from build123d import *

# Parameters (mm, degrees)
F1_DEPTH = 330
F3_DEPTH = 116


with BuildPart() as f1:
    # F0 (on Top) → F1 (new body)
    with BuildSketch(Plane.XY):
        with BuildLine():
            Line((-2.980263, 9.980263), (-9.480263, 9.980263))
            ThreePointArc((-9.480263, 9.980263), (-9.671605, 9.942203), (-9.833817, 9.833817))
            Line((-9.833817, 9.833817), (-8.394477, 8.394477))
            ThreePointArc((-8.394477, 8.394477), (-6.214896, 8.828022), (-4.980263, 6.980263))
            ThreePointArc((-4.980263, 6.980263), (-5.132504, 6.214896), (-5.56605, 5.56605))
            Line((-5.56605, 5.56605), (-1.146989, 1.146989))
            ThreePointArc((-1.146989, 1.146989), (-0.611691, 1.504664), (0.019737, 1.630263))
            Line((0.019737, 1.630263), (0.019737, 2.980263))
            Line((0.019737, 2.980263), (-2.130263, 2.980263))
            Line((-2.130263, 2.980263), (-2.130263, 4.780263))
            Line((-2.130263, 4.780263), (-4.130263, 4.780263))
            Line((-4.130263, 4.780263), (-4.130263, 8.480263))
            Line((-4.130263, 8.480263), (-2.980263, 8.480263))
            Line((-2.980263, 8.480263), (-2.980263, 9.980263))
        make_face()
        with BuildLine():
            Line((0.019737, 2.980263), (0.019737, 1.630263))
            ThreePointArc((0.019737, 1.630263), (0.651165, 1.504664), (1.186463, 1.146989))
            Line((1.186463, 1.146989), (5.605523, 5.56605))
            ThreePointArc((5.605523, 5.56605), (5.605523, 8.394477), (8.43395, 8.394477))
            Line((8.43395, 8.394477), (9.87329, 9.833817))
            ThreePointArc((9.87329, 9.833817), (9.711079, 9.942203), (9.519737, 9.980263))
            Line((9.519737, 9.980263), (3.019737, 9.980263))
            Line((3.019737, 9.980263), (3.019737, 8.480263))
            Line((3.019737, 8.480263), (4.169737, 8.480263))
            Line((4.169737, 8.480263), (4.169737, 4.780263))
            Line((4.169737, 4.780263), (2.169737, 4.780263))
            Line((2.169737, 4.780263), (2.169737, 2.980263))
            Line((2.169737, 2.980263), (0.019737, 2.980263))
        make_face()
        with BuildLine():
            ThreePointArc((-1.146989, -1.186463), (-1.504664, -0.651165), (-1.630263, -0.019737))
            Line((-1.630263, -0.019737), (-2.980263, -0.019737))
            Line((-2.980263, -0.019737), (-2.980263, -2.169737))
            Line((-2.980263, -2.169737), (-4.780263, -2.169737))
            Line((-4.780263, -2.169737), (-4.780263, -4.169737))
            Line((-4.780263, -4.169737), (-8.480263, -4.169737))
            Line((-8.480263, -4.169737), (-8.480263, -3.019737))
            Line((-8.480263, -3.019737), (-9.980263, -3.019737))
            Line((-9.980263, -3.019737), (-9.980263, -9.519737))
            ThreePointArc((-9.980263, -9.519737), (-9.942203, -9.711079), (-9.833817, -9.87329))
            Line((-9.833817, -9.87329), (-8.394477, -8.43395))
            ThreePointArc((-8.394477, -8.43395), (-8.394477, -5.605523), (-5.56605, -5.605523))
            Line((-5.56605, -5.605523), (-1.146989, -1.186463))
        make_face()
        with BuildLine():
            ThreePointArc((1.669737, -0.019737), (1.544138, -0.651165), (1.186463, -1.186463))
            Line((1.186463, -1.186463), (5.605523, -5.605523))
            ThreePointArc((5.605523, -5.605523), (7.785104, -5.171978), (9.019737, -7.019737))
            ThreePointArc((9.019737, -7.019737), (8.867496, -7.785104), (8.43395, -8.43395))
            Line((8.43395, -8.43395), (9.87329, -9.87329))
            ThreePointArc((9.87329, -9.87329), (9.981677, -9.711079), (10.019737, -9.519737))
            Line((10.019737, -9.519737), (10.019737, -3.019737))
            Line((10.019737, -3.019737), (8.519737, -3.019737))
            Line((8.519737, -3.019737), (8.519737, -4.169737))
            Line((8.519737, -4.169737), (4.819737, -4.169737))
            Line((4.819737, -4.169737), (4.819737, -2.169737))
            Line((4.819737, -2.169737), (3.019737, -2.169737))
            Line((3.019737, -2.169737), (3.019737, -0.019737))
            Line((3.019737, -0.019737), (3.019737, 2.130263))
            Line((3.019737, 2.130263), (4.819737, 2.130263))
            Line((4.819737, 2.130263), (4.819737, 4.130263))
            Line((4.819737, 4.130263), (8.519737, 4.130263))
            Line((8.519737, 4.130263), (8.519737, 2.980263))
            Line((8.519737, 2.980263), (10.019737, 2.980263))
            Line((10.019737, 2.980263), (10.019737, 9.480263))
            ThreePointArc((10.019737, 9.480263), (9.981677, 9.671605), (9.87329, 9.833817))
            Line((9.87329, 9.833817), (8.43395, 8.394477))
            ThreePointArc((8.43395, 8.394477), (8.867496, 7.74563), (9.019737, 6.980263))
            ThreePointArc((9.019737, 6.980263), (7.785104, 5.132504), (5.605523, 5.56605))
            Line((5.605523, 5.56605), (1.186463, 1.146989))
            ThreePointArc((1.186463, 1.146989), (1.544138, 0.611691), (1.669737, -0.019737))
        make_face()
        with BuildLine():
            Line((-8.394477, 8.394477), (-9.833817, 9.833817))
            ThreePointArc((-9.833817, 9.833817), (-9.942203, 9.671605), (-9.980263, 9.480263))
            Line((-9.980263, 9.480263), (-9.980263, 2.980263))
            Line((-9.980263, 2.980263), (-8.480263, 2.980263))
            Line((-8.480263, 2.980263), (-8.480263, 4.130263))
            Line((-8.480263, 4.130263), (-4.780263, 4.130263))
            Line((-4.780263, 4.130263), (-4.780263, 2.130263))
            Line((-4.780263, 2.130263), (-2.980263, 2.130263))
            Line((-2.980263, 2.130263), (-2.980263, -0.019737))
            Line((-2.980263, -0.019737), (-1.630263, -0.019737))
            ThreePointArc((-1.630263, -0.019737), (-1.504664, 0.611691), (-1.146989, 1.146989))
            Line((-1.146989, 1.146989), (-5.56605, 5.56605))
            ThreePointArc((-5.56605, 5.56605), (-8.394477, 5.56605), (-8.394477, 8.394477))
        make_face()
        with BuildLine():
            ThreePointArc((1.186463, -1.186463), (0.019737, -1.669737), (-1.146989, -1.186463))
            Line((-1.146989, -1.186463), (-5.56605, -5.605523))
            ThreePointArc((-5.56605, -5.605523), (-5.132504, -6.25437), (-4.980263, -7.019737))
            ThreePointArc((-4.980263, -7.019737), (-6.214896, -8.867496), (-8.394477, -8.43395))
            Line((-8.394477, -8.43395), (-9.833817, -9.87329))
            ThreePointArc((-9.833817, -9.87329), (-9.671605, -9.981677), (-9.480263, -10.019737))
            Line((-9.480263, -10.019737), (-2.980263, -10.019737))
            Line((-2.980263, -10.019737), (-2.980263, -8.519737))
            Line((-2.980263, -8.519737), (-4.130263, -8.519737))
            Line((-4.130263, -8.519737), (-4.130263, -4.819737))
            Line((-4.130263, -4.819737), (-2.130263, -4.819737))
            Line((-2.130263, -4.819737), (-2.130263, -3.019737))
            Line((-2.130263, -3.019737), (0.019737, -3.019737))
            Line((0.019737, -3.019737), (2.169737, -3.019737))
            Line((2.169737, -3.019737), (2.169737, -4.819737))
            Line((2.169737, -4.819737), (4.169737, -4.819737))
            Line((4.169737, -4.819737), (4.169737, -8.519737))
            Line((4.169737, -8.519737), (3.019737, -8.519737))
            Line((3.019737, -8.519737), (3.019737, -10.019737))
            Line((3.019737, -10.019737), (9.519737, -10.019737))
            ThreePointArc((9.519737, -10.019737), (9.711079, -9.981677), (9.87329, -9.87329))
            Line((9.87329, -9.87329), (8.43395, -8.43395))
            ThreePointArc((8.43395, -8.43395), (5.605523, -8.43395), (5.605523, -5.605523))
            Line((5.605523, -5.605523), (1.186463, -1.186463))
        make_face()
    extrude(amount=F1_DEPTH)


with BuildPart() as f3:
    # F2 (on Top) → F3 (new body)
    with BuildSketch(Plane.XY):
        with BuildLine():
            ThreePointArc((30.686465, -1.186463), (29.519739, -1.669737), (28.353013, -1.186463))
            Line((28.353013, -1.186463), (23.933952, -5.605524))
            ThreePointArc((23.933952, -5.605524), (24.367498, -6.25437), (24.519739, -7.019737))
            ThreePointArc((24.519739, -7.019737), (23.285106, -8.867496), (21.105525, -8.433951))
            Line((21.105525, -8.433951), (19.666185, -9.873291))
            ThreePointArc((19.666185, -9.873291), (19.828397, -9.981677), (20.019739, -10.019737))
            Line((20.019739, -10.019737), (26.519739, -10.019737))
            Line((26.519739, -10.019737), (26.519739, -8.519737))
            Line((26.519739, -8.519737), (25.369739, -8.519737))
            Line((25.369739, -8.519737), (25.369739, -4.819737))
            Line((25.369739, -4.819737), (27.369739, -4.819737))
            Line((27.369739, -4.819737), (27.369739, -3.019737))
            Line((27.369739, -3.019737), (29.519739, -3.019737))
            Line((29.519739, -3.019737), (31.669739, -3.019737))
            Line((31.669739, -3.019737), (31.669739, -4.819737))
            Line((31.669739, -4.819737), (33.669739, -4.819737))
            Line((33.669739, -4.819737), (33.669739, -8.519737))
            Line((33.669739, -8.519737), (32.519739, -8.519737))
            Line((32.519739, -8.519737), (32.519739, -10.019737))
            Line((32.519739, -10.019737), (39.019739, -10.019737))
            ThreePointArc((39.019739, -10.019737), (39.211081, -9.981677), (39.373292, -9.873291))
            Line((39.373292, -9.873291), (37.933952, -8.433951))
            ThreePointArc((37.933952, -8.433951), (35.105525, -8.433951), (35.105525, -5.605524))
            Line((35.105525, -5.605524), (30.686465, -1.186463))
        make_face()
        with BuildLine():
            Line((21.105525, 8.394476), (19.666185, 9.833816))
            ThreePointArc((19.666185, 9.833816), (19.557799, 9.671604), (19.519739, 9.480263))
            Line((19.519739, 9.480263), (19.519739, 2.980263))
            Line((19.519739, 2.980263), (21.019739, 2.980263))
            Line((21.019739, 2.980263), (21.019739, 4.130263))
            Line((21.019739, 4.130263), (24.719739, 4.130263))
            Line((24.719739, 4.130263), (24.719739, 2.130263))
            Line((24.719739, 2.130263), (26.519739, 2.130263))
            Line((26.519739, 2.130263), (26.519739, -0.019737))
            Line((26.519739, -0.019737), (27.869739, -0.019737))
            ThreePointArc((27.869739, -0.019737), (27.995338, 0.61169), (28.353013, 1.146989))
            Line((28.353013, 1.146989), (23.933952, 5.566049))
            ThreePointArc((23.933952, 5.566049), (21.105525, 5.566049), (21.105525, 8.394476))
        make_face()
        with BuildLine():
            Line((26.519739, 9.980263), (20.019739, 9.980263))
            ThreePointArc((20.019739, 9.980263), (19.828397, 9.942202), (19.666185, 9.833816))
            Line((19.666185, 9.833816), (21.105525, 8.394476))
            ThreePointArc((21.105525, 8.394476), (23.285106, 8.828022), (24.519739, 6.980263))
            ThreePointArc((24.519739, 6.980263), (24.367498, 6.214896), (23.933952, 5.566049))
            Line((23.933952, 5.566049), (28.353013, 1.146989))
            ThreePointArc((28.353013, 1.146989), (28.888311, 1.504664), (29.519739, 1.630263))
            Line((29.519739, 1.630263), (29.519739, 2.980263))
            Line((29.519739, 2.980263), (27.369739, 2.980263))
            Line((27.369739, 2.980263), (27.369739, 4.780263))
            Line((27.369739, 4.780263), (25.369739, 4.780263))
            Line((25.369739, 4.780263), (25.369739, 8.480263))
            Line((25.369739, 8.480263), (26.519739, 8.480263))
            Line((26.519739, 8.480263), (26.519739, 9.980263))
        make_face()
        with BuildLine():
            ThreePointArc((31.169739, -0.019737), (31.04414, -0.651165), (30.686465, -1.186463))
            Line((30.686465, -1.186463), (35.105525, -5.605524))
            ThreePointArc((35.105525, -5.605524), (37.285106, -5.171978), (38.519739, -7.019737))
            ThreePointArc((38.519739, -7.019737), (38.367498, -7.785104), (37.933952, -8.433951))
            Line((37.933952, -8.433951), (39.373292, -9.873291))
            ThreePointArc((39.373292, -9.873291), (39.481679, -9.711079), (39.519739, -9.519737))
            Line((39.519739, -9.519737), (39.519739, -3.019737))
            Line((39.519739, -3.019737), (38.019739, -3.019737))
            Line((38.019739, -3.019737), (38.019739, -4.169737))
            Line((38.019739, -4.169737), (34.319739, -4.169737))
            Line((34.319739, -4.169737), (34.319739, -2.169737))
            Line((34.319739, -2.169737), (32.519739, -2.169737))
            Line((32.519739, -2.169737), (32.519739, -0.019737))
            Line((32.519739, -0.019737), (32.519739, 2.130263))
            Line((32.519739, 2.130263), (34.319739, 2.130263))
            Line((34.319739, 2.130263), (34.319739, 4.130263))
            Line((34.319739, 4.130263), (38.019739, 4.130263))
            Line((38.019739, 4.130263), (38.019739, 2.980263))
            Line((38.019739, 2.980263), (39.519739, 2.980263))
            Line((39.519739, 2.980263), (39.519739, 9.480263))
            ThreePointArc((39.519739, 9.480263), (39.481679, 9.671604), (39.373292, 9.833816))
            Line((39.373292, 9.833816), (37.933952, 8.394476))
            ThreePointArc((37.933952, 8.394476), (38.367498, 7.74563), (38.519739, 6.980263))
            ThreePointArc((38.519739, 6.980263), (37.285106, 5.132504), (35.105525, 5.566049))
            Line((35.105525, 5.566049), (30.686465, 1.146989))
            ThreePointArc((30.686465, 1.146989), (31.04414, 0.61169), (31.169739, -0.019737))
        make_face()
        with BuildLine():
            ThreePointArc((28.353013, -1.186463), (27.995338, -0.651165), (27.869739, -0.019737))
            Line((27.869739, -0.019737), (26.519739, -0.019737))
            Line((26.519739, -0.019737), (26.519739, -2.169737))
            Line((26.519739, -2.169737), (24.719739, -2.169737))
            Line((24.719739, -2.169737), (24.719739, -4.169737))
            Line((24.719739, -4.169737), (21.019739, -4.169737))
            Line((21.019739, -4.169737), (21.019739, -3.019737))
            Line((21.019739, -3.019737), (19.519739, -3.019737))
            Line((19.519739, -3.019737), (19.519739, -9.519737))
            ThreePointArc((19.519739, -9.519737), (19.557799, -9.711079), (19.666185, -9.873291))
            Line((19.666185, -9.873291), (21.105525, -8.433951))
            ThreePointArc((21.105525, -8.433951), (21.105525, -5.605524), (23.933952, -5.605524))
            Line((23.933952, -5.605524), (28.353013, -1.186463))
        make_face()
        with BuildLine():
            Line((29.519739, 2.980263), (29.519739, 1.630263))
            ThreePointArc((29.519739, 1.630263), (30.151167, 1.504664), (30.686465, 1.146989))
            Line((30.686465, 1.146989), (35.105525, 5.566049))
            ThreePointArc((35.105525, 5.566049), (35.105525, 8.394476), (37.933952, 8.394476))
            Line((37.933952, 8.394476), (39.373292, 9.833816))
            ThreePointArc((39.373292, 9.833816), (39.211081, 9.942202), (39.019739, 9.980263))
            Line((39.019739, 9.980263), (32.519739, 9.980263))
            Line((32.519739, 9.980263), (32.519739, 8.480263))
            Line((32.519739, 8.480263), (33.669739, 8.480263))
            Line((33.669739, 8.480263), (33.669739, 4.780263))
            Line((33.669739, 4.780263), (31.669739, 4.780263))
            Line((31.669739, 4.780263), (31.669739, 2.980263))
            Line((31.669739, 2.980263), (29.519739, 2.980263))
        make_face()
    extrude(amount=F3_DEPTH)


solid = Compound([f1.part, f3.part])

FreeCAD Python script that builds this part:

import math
import FreeCAD as App
import Part
import Sketcher

V = App.Vector
Q = App.Units.Quantity

doc = App.newDocument("Part")
body = doc.addObject("PartDesign::Body", "Body")

sketch1 = body.newObject("Sketcher::SketchObject", "Sketch")
sketch1.AttachmentSupport = (doc.getObject("XY_Plane"), [""])
sketch1.MapMode = "FlatFace"
sketch1.addGeometry([
    Part.LineSegment(V(-2.98, 9.98, 0), V(-9.48, 9.98, 0)),
    Part.ArcOfCircle(Part.Circle(V(-9.48, 9.48, 0), V(0, 0, 1), 0.5), math.radians(90), math.radians(135)),
    Part.ArcOfCircle(Part.Circle(V(-9.48, 9.48, 0), V(0, 0, 1), 0.5), math.radians(135), math.radians(180)),
    Part.LineSegment(V(-9.98, 9.48, 0), V(-9.98, 2.98, 0)),
    Part.LineSegment(V(-9.98, 2.98, 0), V(-8.48, 2.98, 0)),
    Part.LineSegment(V(-8.48, 2.98, 0), V(-8.48, 4.13, 0)),
    Part.LineSegment(V(-8.48, 4.13, 0), V(-4.78, 4.13, 0)),
    Part.LineSegment(V(-4.78, 4.13, 0), V(-4.78, 2.13, 0)),
    Part.LineSegment(V(-4.78, 2.13, 0), V(-2.98, 2.13, 0)),
    Part.LineSegment(V(-2.98, 2.13, 0), V(-2.98, -2.17, 0)),
    Part.LineSegment(V(-2.98, -2.17, 0), V(-4.78, -2.17, 0)),
    Part.LineSegment(V(-4.78, -2.17, 0), V(-4.78, -4.17, 0)),
    Part.LineSegment(V(-4.78, -4.17, 0), V(-8.48, -4.17, 0)),
    Part.LineSegment(V(-8.48, -4.17, 0), V(-8.48, -3.02, 0)),
    Part.LineSegment(V(-8.48, -3.02, 0), V(-9.98, -3.02, 0)),
    Part.LineSegment(V(-9.98, -3.02, 0), V(-9.98, -9.52, 0)),
    Part.ArcOfCircle(Part.Circle(V(-9.48, -9.52, 0), V(0, 0, 1), 0.5), math.radians(180), math.radians(225)),
    Part.ArcOfCircle(Part.Circle(V(-9.48, -9.52, 0), V(0, 0, 1), 0.5), math.radians(-135), math.radians(-90)),
    Part.LineSegment(V(-9.48, -10.02, 0), V(-2.98, -10.02, 0)),
    Part.LineSegment(V(-2.98, -10.02, 0), V(-2.98, -8.52, 0)),
    Part.LineSegment(V(-2.98, -8.52, 0), V(-4.13, -8.52, 0)),
    Part.LineSegment(V(-4.13, -8.52, 0), V(-4.13, -4.82, 0)),
    Part.LineSegment(V(-4.13, -4.82, 0), V(-2.13, -4.82, 0)),
    Part.LineSegment(V(-2.13, -4.82, 0), V(-2.13, -3.02, 0)),
    Part.LineSegment(V(-2.13, -3.02, 0), V(2.17, -3.02, 0)),
    Part.LineSegment(V(2.17, -3.02, 0), V(2.17, -4.82, 0)),
    Part.LineSegment(V(2.17, -4.82, 0), V(4.17, -4.82, 0)),
    Part.LineSegment(V(4.17, -4.82, 0), V(4.17, -8.52, 0)),
    Part.LineSegment(V(4.17, -8.52, 0), V(3.02, -8.52, 0)),
    Part.LineSegment(V(3.02, -8.52, 0), V(3.02, -10.02, 0)),
    Part.LineSegment(V(3.02, -10.02, 0), V(9.52, -10.02, 0)),
    Part.ArcOfCircle(Part.Circle(V(9.52, -9.52, 0), V(0, 0, 1), 0.5), math.radians(-90), math.radians(-45)),
    Part.ArcOfCircle(Part.Circle(V(9.52, -9.52, 0), V(0, 0, 1), 0.5), math.radians(-45), math.radians(0)),
    Part.LineSegment(V(10.02, -9.52, 0), V(10.02, -3.02, 0)),
    Part.LineSegment(V(10.02, -3.02, 0), V(8.52, -3.02, 0)),
    Part.LineSegment(V(8.52, -3.02, 0), V(8.52, -4.17, 0)),
    Part.LineSegment(V(8.52, -4.17, 0), V(4.82, -4.17, 0)),
    Part.LineSegment(V(4.82, -4.17, 0), V(4.82, -2.17, 0)),
    Part.LineSegment(V(4.82, -2.17, 0), V(3.02, -2.17, 0)),
    Part.LineSegment(V(3.02, -2.17, 0), V(3.02, 2.13, 0)),
    Part.LineSegment(V(3.02, 2.13, 0), V(4.82, 2.13, 0)),
    Part.LineSegment(V(4.82, 2.13, 0), V(4.82, 4.13, 0)),
    Part.LineSegment(V(4.82, 4.13, 0), V(8.52, 4.13, 0)),
    Part.LineSegment(V(8.52, 4.13, 0), V(8.52, 2.98, 0)),
    Part.LineSegment(V(8.52, 2.98, 0), V(10.02, 2.98, 0)),
    Part.LineSegment(V(10.02, 2.98, 0), V(10.02, 9.48, 0)),
    Part.ArcOfCircle(Part.Circle(V(9.52, 9.48, 0), V(0, 0, 1), 0.5), math.radians(0), math.radians(45)),
    Part.ArcOfCircle(Part.Circle(V(9.52, 9.48, 0), V(0, 0, 1), 0.5), math.radians(45), math.radians(90)),
    Part.LineSegment(V(9.52, 9.98, 0), V(3.02, 9.98, 0)),
    Part.LineSegment(V(3.02, 9.98, 0), V(3.02, 8.48, 0)),
    Part.LineSegment(V(3.02, 8.48, 0), V(4.17, 8.48, 0)),
    Part.LineSegment(V(4.17, 8.48, 0), V(4.17, 4.78, 0)),
    Part.LineSegment(V(4.17, 4.78, 0), V(2.17, 4.78, 0)),
    Part.LineSegment(V(2.17, 4.78, 0), V(2.17, 2.98, 0)),
    Part.LineSegment(V(2.17, 2.98, 0), V(-2.13, 2.98, 0)),
    Part.LineSegment(V(-2.13, 2.98, 0), V(-2.13, 4.78, 0)),
    Part.LineSegment(V(-2.13, 4.78, 0), V(-4.13, 4.78, 0)),
    Part.LineSegment(V(-4.13, 4.78, 0), V(-4.13, 8.48, 0)),
    Part.LineSegment(V(-4.13, 8.48, 0), V(-2.98, 8.48, 0)),
    Part.LineSegment(V(-2.98, 8.48, 0), V(-2.98, 9.98, 0)),
    Part.ArcOfCircle(Part.Circle(V(-6.98, -7.02, 0), V(0, 0, 1), 2), math.radians(45), math.radians(225)),
    Part.ArcOfCircle(Part.Circle(V(-6.98, -7.02, 0), V(0, 0, 1), 2), math.radians(0), math.radians(45)),
    Part.ArcOfCircle(Part.Circle(V(-6.98, -7.02, 0), V(0, 0, 1), 2), math.radians(-135), math.radians(0)),
    Part.ArcOfCircle(Part.Circle(V(0.02, -0.02, 0), V(0, 0, 1), 1.65), math.radians(-180), math.radians(-135)),
    Part.ArcOfCircle(Part.Circle(V(0.02, -0.02, 0), V(0, 0, 1), 1.65), math.radians(135), math.radians(180)),
    Part.ArcOfCircle(Part.Circle(V(0.02, -0.02, 0), V(0, 0, 1), 1.65), math.radians(90), math.radians(135)),
    Part.ArcOfCircle(Part.Circle(V(0.02, -0.02, 0), V(0, 0, 1), 1.65), math.radians(45), math.radians(90)),
    Part.ArcOfCircle(Part.Circle(V(0.02, -0.02, 0), V(0, 0, 1), 1.65), math.radians(0), math.radians(45)),
    Part.ArcOfCircle(Part.Circle(V(0.02, -0.02, 0), V(0, 0, 1), 1.65), math.radians(-45), math.radians(0)),
    Part.ArcOfCircle(Part.Circle(V(0.02, -0.02, 0), V(0, 0, 1), 1.65), math.radians(-135), math.radians(-45)),
    Part.ArcOfCircle(Part.Circle(V(7.02, -7.02, 0), V(0, 0, 1), 2), math.radians(0), math.radians(135)),
    Part.ArcOfCircle(Part.Circle(V(7.02, -7.02, 0), V(0, 0, 1), 2), math.radians(-45), math.radians(0)),
    Part.ArcOfCircle(Part.Circle(V(7.02, -7.02, 0), V(0, 0, 1), 2), math.radians(135), math.radians(315)),
    Part.ArcOfCircle(Part.Circle(V(-6.98, 6.98, 0), V(0, 0, 1), 2), math.radians(0), math.radians(135)),
    Part.ArcOfCircle(Part.Circle(V(-6.98, 6.98, 0), V(0, 0, 1), 2), math.radians(-45), math.radians(0)),
    Part.ArcOfCircle(Part.Circle(V(-6.98, 6.98, 0), V(0, 0, 1), 2), math.radians(135), math.radians(315)),
    Part.ArcOfCircle(Part.Circle(V(7.02, 6.98, 0), V(0, 0, 1), 2), math.radians(45), math.radians(225)),
    Part.ArcOfCircle(Part.Circle(V(7.02, 6.98, 0), V(0, 0, 1), 2), math.radians(0), math.radians(45)),
    Part.ArcOfCircle(Part.Circle(V(7.02, 6.98, 0), V(0, 0, 1), 2), math.radians(-135), math.radians(0)),
], False)
sketch1.addConstraint([
    Sketcher.Constraint("Tangent", 0, 2, 1, 1),
    Sketcher.Constraint("Coincident", 1, 2, 2, 1),
    Sketcher.Constraint("Tangent", 2, 2, 3, 1),
    Sketcher.Constraint("Coincident", 3, 2, 4, 1),
    Sketcher.Constraint("Coincident", 4, 2, 5, 1),
    Sketcher.Constraint("Coincident", 5, 2, 6, 1),
    Sketcher.Constraint("Coincident", 6, 2, 7, 1),
    Sketcher.Constraint("Coincident", 7, 2, 8, 1),
    Sketcher.Constraint("Coincident", 8, 2, 9, 1),
    Sketcher.Constraint("Coincident", 9, 2, 10, 1),
    Sketcher.Constraint("Coincident", 10, 2, 11, 1),
    Sketcher.Constraint("Coincident", 11, 2, 12, 1),
    Sketcher.Constraint("Coincident", 12, 2, 13, 1),
    Sketcher.Constraint("Coincident", 13, 2, 14, 1),
    Sketcher.Constraint("Coincident", 14, 2, 15, 1),
    Sketcher.Constraint("Coincident", 15, 2, 16, 1),
    Sketcher.Constraint("Coincident", 16, 2, 17, 1),
    Sketcher.Constraint("Coincident", 17, 2, 18, 1),
    Sketcher.Constraint("Coincident", 18, 2, 19, 1),
    Sketcher.Constraint("Coincident", 19, 2, 20, 1),
    Sketcher.Constraint("Coincident", 20, 2, 21, 1),
    Sketcher.Constraint("Coincident", 21, 2, 22, 1),
    Sketcher.Constraint("Coincident", 22, 2, 23, 1),
    Sketcher.Constraint("Coincident", 23, 2, 24, 1),
    Sketcher.Constraint("Coincident", 24, 2, 25, 1),
    Sketcher.Constraint("Coincident", 25, 2, 26, 1),
    Sketcher.Constraint("Coincident", 26, 2, 27, 1),
    Sketcher.Constraint("Coincident", 27, 2, 28, 1),
    Sketcher.Constraint("Coincident", 28, 2, 29, 1),
    Sketcher.Constraint("Coincident", 29, 2, 30, 1),
    Sketcher.Constraint("Coincident", 30, 2, 31, 1),
    Sketcher.Constraint("Coincident", 31, 2, 32, 1),
    Sketcher.Constraint("Coincident", 32, 2, 33, 1),
    Sketcher.Constraint("Coincident", 33, 2, 34, 1),
    Sketcher.Constraint("Coincident", 34, 2, 35, 1),
    Sketcher.Constraint("Coincident", 35, 2, 36, 1),
    Sketcher.Constraint("Coincident", 36, 2, 37, 1),
    Sketcher.Constraint("Coincident", 37, 2, 38, 1),
    Sketcher.Constraint("Coincident", 38, 2, 39, 1),
    Sketcher.Constraint("Coincident", 39, 2, 40, 1),
    Sketcher.Constraint("Coincident", 40, 2, 41, 1),
    Sketcher.Constraint("Coincident", 41, 2, 42, 1),
    Sketcher.Constraint("Coincident", 42, 2, 43, 1),
    Sketcher.Constraint("Coincident", 43, 2, 44, 1),
    Sketcher.Constraint("Coincident", 44, 2, 45, 1),
    Sketcher.Constraint("Coincident", 45, 2, 46, 1),
    Sketcher.Constraint("Coincident", 46, 2, 47, 1),
    Sketcher.Constraint("Coincident", 47, 2, 48, 1),
    Sketcher.Constraint("Coincident", 48, 2, 49, 1),
    Sketcher.Constraint("Coincident", 49, 2, 50, 1),
    Sketcher.Constraint("Coincident", 50, 2, 51, 1),
    Sketcher.Constraint("Coincident", 51, 2, 52, 1),
    Sketcher.Constraint("Coincident", 52, 2, 53, 1),
    Sketcher.Constraint("Coincident", 53, 2, 54, 1),
    Sketcher.Constraint("Coincident", 54, 2, 55, 1),
    Sketcher.Constraint("Coincident", 55, 2, 56, 1),
    Sketcher.Constraint("Coincident", 56, 2, 57, 1),
    Sketcher.Constraint("Coincident", 57, 2, 58, 1),
    Sketcher.Constraint("Coincident", 58, 2, 59, 1),
    Sketcher.Constraint("Coincident", 59, 2, 0, 1),
    Sketcher.Constraint("Tangent", 60, 1, 61, 2),
    Sketcher.Constraint("Tangent", 61, 1, 62, 2),
    Sketcher.Constraint("Tangent", 62, 1, 60, 2),
    Sketcher.Constraint("Tangent", 63, 1, 64, 2),
    Sketcher.Constraint("Tangent", 64, 1, 65, 2),
    Sketcher.Constraint("Tangent", 65, 1, 66, 2),
    Sketcher.Constraint("Tangent", 66, 1, 67, 2),
    Sketcher.Constraint("Tangent", 67, 1, 68, 2),
    Sketcher.Constraint("Tangent", 68, 1, 69, 2),
    Sketcher.Constraint("Tangent", 69, 1, 63, 2),
    Sketcher.Constraint("Tangent", 70, 1, 71, 2),
    Sketcher.Constraint("Tangent", 71, 1, 72, 2),
    Sketcher.Constraint("Tangent", 72, 1, 70, 2),
    Sketcher.Constraint("Tangent", 73, 1, 74, 2),
    Sketcher.Constraint("Tangent", 74, 1, 75, 2),
    Sketcher.Constraint("Tangent", 75, 1, 73, 2),
    Sketcher.Constraint("Tangent", 76, 1, 77, 2),
    Sketcher.Constraint("Tangent", 77, 1, 78, 2),
    Sketcher.Constraint("Tangent", 78, 1, 76, 2),
    Sketcher.Constraint("Horizontal", 0),
    Sketcher.Constraint("Vertical", 3),
    Sketcher.Constraint("Horizontal", 4),
    Sketcher.Constraint("Vertical", 5),
    Sketcher.Constraint("Horizontal", 6),
    Sketcher.Constraint("Vertical", 7),
    Sketcher.Constraint("Horizontal", 8),
    Sketcher.Constraint("Vertical", 9),
    Sketcher.Constraint("Horizontal", 10),
    Sketcher.Constraint("Vertical", 11),
    Sketcher.Constraint("Horizontal", 12),
    Sketcher.Constraint("Vertical", 13),
    Sketcher.Constraint("Horizontal", 14),
    Sketcher.Constraint("Vertical", 15),
    Sketcher.Constraint("Horizontal", 18),
    Sketcher.Constraint("Vertical", 19),
    Sketcher.Constraint("Horizontal", 20),
    Sketcher.Constraint("Vertical", 21),
    Sketcher.Constraint("Horizontal", 22),
    Sketcher.Constraint("Vertical", 23),
    Sketcher.Constraint("Horizontal", 24),
    Sketcher.Constraint("Vertical", 25),
    Sketcher.Constraint("Horizontal", 26),
    Sketcher.Constraint("Vertical", 27),
    Sketcher.Constraint("Horizontal", 28),
    Sketcher.Constraint("Vertical", 29),
    Sketcher.Constraint("Horizontal", 30),
    Sketcher.Constraint("Vertical", 33),
    Sketcher.Constraint("Horizontal", 34),
    Sketcher.Constraint("Vertical", 35),
    Sketcher.Constraint("Horizontal", 36),
    Sketcher.Constraint("Vertical", 37),
    Sketcher.Constraint("Horizontal", 38),
    Sketcher.Constraint("Vertical", 39),
    Sketcher.Constraint("Horizontal", 40),
    Sketcher.Constraint("Vertical", 41),
    Sketcher.Constraint("Horizontal", 42),
    Sketcher.Constraint("Vertical", 43),
    Sketcher.Constraint("Horizontal", 44),
    Sketcher.Constraint("Vertical", 45),
    Sketcher.Constraint("Horizontal", 48),
    Sketcher.Constraint("Vertical", 49),
    Sketcher.Constraint("Horizontal", 50),
    Sketcher.Constraint("Vertical", 51),
    Sketcher.Constraint("Horizontal", 52),
    Sketcher.Constraint("Vertical", 53),
    Sketcher.Constraint("Horizontal", 54),
    Sketcher.Constraint("Vertical", 55),
    Sketcher.Constraint("Horizontal", 56),
    Sketcher.Constraint("Vertical", 57),
    Sketcher.Constraint("Horizontal", 58),
    Sketcher.Constraint("Vertical", 59),
    Sketcher.Constraint("Coincident", 2, 3, 1, 3),
    Sketcher.Constraint("Coincident", 17, 3, 16, 3),
    Sketcher.Constraint("Coincident", 32, 3, 31, 3),
    Sketcher.Constraint("Coincident", 47, 3, 46, 3),
    Sketcher.Constraint("Coincident", 65, 3, 63, 3),
    Sketcher.Constraint("Coincident", 67, 3, 63, 3),
    Sketcher.Constraint("Equal", 17, 46),
    Sketcher.Constraint("Equal", 62, 70),
    Sketcher.Constraint("Equal", 72, 73),
    Sketcher.Constraint("Equal", 75, 76),
    Sketcher.Constraint("Horizontal", 17, 3, 32, 3),
    Sketcher.Constraint("Horizontal", 2, 3, 46, 3),
    Sketcher.Constraint("Horizontal", 62, 3, 70, 3),
    Sketcher.Constraint("Horizontal", 75, 3, 76, 3),
    Sketcher.Constraint("Horizontal", 16, 3, 15, 2),
    Sketcher.Constraint("Horizontal", 14, 2, 23, 2),
    Sketcher.Constraint("Horizontal", 22, 2, 25, 2),
    Sketcher.Constraint("Horizontal", 20, 2, 27, 2),
    Sketcher.Constraint("Horizontal", 18, 2, 29, 2),
    Sketcher.Constraint("Horizontal", 16, 2, 31, 2),
    Sketcher.Constraint("Horizontal", 15, 2, 32, 2),
    Sketcher.Constraint("Horizontal", 24, 2, 33, 2),
    Sketcher.Constraint("Horizontal", 12, 2, 35, 2),
    Sketcher.Constraint("Horizontal", 10, 2, 37, 2),
    Sketcher.Constraint("Horizontal", 8, 2, 39, 2),
    Sketcher.Constraint("Horizontal", 6, 2, 41, 2),
    Sketcher.Constraint("Horizontal", 4, 2, 43, 2),
    Sketcher.Constraint("Horizontal", 2, 2, 45, 2),
    Sketcher.Constraint("Horizontal", 1, 2, 46, 2),
    Sketcher.Constraint("Horizontal", 0, 2, 47, 2),
    Sketcher.Constraint("Horizontal", 44, 2, 53, 2),
    Sketcher.Constraint("Horizontal", 52, 2, 55, 2),
    Sketcher.Constraint("Horizontal", 50, 2, 57, 2),
    Sketcher.Constraint("Horizontal", 72, 3, 61, 1),
    Sketcher.Constraint("Horizontal", 69, 3, 63, 1),
    Sketcher.Constraint("Horizontal", 64, 1, 66, 1),
    Sketcher.Constraint("Horizontal", 63, 1, 67, 1),
    Sketcher.Constraint("Horizontal", 68, 1, 69, 1),
    Sketcher.Constraint("Horizontal", 61, 1, 70, 1),
    Sketcher.Constraint("Horizontal", 62, 1, 71, 1),
    Sketcher.Constraint("Horizontal", 60, 1, 72, 1),
    Sketcher.Constraint("Horizontal", 78, 3, 73, 1),
    Sketcher.Constraint("Horizontal", 75, 1, 76, 1),
    Sketcher.Constraint("Horizontal", 73, 1, 77, 1),
    Sketcher.Constraint("Horizontal", 74, 1, 78, 1),
    Sketcher.Constraint("Vertical", 1, 3, 17, 3),
    Sketcher.Constraint("Vertical", 31, 3, 46, 3),
    Sketcher.Constraint("Vertical", 62, 3, 73, 3),
    Sketcher.Constraint("Vertical", 72, 3, 76, 3),
    Sketcher.Constraint("Vertical", 7, 2, 10, 2),
    Sketcher.Constraint("Vertical", 5, 2, 12, 2),
    Sketcher.Constraint("Vertical", 1, 2, 16, 2),
    Sketcher.Constraint("Vertical", 0, 2, 17, 2),
    Sketcher.Constraint("Vertical", 9, 2, 18, 2),
    Sketcher.Constraint("Vertical", 47, 3, 30, 2),
    Sketcher.Constraint("Vertical", 29, 2, 38, 2),
    Sketcher.Constraint("Vertical", 37, 2, 40, 2),
    Sketcher.Constraint("Vertical", 35, 2, 42, 2),
    Sketcher.Constraint("Vertical", 30, 2, 47, 2),
    Sketcher.Constraint("Vertical", 39, 2, 48, 2),
    Sketcher.Constraint("Vertical", 27, 2, 50, 2),
    Sketcher.Constraint("Vertical", 25, 2, 52, 2),
    Sketcher.Constraint("Vertical", 23, 2, 54, 2),
    Sketcher.Constraint("Vertical", 21, 2, 56, 2),
    Sketcher.Constraint("Vertical", 19, 2, 58, 2),
    Sketcher.Constraint("Vertical", 69, 3, 65, 1),
    Sketcher.Constraint("Vertical", 66, 1, 68, 1),
    Sketcher.Constraint("Vertical", 60, 1, 74, 1),
    Sketcher.Constraint("Vertical", 62, 1, 75, 1),
    Sketcher.Constraint("Equal", 22, 26),
    Sketcher.Constraint("Equal", 20, 28),
    Sketcher.Constraint("Equal", 18, 30),
    Sketcher.Constraint("Equal", 14, 34),
    Sketcher.Constraint("Equal", 12, 36),
    Sketcher.Constraint("Equal", 48, 3),
    Sketcher.Constraint("Equal", 58, 5),
    Sketcher.Constraint("Equal", 56, 7),
    Sketcher.Constraint("Equal", 54, 9),
    Sketcher.Constraint("Equal", 7, 11),
    Sketcher.Constraint("Equal", 5, 13),
    Sketcher.Constraint("Equal", 3, 15),
    Sketcher.Constraint("Equal", 44, 19),
    Sketcher.Constraint("Equal", 42, 21),
    Sketcher.Constraint("Equal", 29, 49),
    Sketcher.Constraint("Equal", 27, 51),
    Sketcher.Constraint("Radius", 60, Q("2 mm")),
    Sketcher.Constraint("Radius", 1, Q("0.500002 mm")),
    Sketcher.Constraint("DistanceX", 22, 1, 22, 2, Q("2 mm")),
    Sketcher.Constraint("Radius", 63, Q("1.649999 mm")),
    Sketcher.Constraint("DistanceX", 0, 2, 0, 1, Q("6.5 mm")),
    Sketcher.Constraint("DistanceX", 4, 1, 4, 2, Q("1.5 mm")),
    Sketcher.Constraint("DistanceX", 6, 1, 6, 2, Q("3.7 mm")),
    Sketcher.Constraint("DistanceX", 24, 1, 24, 2, Q("4.3 mm")),
    Sketcher.Constraint("DistanceX", 20, 2, 20, 1, Q("1.15 mm")),
    Sketcher.Constraint("DistanceY", -1, 1, 1, 3, Q("9.480261 mm")),
    Sketcher.Constraint("DistanceX", 2, 3, -1, 1, Q("9.480261 mm")),
    Sketcher.Constraint("DistanceY", 16, 2, -1, 1, Q("9.87329 mm")),
    Sketcher.Constraint("DistanceX", 60, 1, -1, 1, Q("5.56605 mm")),
    Sketcher.Constraint("DistanceY", 62, 1, -1, 1, Q("8.43395 mm")),
    Sketcher.Constraint("DistanceX", 64, 1, -1, 1, Q("1.146989 mm")),
    Sketcher.Constraint("DistanceY", -1, 1, 64, 1, Q("1.146989 mm")),
    Sketcher.Constraint("DistanceX", -1, 1, 71, 1, Q("8.43395 mm")),
    Sketcher.Constraint("DistanceY", -1, 1, 74, 1, Q("5.56605 mm")),
    Sketcher.Constraint("DistanceX", 60, 3, -1, 1, Q("6.980264 mm")),
    Sketcher.Constraint("DistanceY", 60, 3, -1, 1, Q("7.019736 mm")),
    Sketcher.Constraint("DistanceX", -1, 1, 63, 3, Q("0.019736 mm")),
])
pad1 = body.newObject("PartDesign::Pad", "Pad")
pad1.Profile = sketch1
pad1.Length = 330
body2 = doc.addObject("PartDesign::Body", "Body001")

sketch2 = body2.newObject("Sketcher::SketchObject", "Sketch001")
sketch2.AttachmentSupport = (doc.getObject("XY_Plane001"), [""])
sketch2.MapMode = "FlatFace"
sketch2.addGeometry([
    Part.LineSegment(V(27.37, 2.98, 0), V(27.37, 4.78, 0)),
    Part.LineSegment(V(27.37, 4.78, 0), V(25.37, 4.78, 0)),
    Part.LineSegment(V(25.37, 4.78, 0), V(25.37, 8.48, 0)),
    Part.LineSegment(V(25.37, 8.48, 0), V(26.52, 8.48, 0)),
    Part.LineSegment(V(26.52, 8.48, 0), V(26.52, 9.98, 0)),
    Part.LineSegment(V(26.52, 9.98, 0), V(20.02, 9.98, 0)),
    Part.ArcOfCircle(Part.Circle(V(20.02, 9.48, 0), V(0, 0, 1), 0.5), math.radians(90), math.radians(135)),
    Part.ArcOfCircle(Part.Circle(V(20.02, 9.48, 0), V(0, 0, 1), 0.5), math.radians(135), math.radians(180)),
    Part.LineSegment(V(19.52, 9.48, 0), V(19.52, 2.98, 0)),
    Part.LineSegment(V(19.52, 2.98, 0), V(21.02, 2.98, 0)),
    Part.LineSegment(V(21.02, 2.98, 0), V(21.02, 4.13, 0)),
    Part.LineSegment(V(21.02, 4.13, 0), V(24.72, 4.13, 0)),
    Part.LineSegment(V(24.72, 4.13, 0), V(24.72, 2.13, 0)),
    Part.LineSegment(V(24.72, 2.13, 0), V(26.52, 2.13, 0)),
    Part.LineSegment(V(26.52, 2.13, 0), V(26.52, -2.17, 0)),
    Part.LineSegment(V(26.52, -2.17, 0), V(24.72, -2.17, 0)),
    Part.LineSegment(V(24.72, -2.17, 0), V(24.72, -4.17, 0)),
    Part.LineSegment(V(24.72, -4.17, 0), V(21.02, -4.17, 0)),
    Part.LineSegment(V(21.02, -4.17, 0), V(21.02, -3.02, 0)),
    Part.LineSegment(V(21.02, -3.02, 0), V(19.52, -3.02, 0)),
    Part.LineSegment(V(19.52, -3.02, 0), V(19.52, -9.52, 0)),
    Part.ArcOfCircle(Part.Circle(V(20.02, -9.52, 0), V(0, 0, 1), 0.5), math.radians(180), math.radians(225)),
    Part.ArcOfCircle(Part.Circle(V(20.02, -9.52, 0), V(0, 0, 1), 0.5), math.radians(-135), math.radians(-90)),
    Part.LineSegment(V(20.02, -10.02, 0), V(26.52, -10.02, 0)),
    Part.LineSegment(V(26.52, -10.02, 0), V(26.52, -8.52, 0)),
    Part.LineSegment(V(26.52, -8.52, 0), V(25.37, -8.52, 0)),
    Part.LineSegment(V(25.37, -8.52, 0), V(25.37, -4.82, 0)),
    Part.LineSegment(V(25.37, -4.82, 0), V(27.37, -4.82, 0)),
    Part.LineSegment(V(27.37, -4.82, 0), V(27.37, -3.02, 0)),
    Part.LineSegment(V(27.37, -3.02, 0), V(31.67, -3.02, 0)),
    Part.LineSegment(V(31.67, -3.02, 0), V(31.67, -4.82, 0)),
    Part.LineSegment(V(31.67, -4.82, 0), V(33.67, -4.82, 0)),
    Part.LineSegment(V(33.67, -4.82, 0), V(33.67, -8.52, 0)),
    Part.LineSegment(V(33.67, -8.52, 0), V(32.52, -8.52, 0)),
    Part.LineSegment(V(32.52, -8.52, 0), V(32.52, -10.02, 0)),
    Part.LineSegment(V(32.52, -10.02, 0), V(39.02, -10.02, 0)),
    Part.ArcOfCircle(Part.Circle(V(39.02, -9.52, 0), V(0, 0, 1), 0.5), math.radians(-90), math.radians(-45)),
    Part.ArcOfCircle(Part.Circle(V(39.02, -9.52, 0), V(0, 0, 1), 0.5), math.radians(-45), math.radians(0)),
    Part.LineSegment(V(39.52, -9.52, 0), V(39.52, -3.02, 0)),
    Part.LineSegment(V(39.52, -3.02, 0), V(38.02, -3.02, 0)),
    Part.LineSegment(V(38.02, -3.02, 0), V(38.02, -4.17, 0)),
    Part.LineSegment(V(38.02, -4.17, 0), V(34.32, -4.17, 0)),
    Part.LineSegment(V(34.32, -4.17, 0), V(34.32, -2.17, 0)),
    Part.LineSegment(V(34.32, -2.17, 0), V(32.52, -2.17, 0)),
    Part.LineSegment(V(32.52, -2.17, 0), V(32.52, 2.13, 0)),
    Part.LineSegment(V(32.52, 2.13, 0), V(34.32, 2.13, 0)),
    Part.LineSegment(V(34.32, 2.13, 0), V(34.32, 4.13, 0)),
    Part.LineSegment(V(34.32, 4.13, 0), V(38.02, 4.13, 0)),
    Part.LineSegment(V(38.02, 4.13, 0), V(38.02, 2.98, 0)),
    Part.LineSegment(V(38.02, 2.98, 0), V(39.52, 2.98, 0)),
    Part.LineSegment(V(39.52, 2.98, 0), V(39.52, 9.48, 0)),
    Part.ArcOfCircle(Part.Circle(V(39.02, 9.48, 0), V(0, 0, 1), 0.5), math.radians(0), math.radians(45)),
    Part.ArcOfCircle(Part.Circle(V(39.02, 9.48, 0), V(0, 0, 1), 0.5), math.radians(45), math.radians(90)),
    Part.LineSegment(V(39.02, 9.98, 0), V(32.52, 9.98, 0)),
    Part.LineSegment(V(32.52, 9.98, 0), V(32.52, 8.48, 0)),
    Part.LineSegment(V(32.52, 8.48, 0), V(33.67, 8.48, 0)),
    Part.LineSegment(V(33.67, 8.48, 0), V(33.67, 4.78, 0)),
    Part.LineSegment(V(33.67, 4.78, 0), V(31.67, 4.78, 0)),
    Part.LineSegment(V(31.67, 4.78, 0), V(31.67, 2.98, 0)),
    Part.LineSegment(V(31.67, 2.98, 0), V(27.37, 2.98, 0)),
    Part.ArcOfCircle(Part.Circle(V(29.52, -0.02, 0), V(0, 0, 1), 1.65), math.radians(-135), math.radians(-45)),
    Part.ArcOfCircle(Part.Circle(V(29.52, -0.02, 0), V(0, 0, 1), 1.65), math.radians(-180), math.radians(-135)),
    Part.ArcOfCircle(Part.Circle(V(29.52, -0.02, 0), V(0, 0, 1), 1.65), math.radians(135), math.radians(180)),
    Part.ArcOfCircle(Part.Circle(V(29.52, -0.02, 0), V(0, 0, 1), 1.65), math.radians(90), math.radians(135)),
    Part.ArcOfCircle(Part.Circle(V(29.52, -0.02, 0), V(0, 0, 1), 1.65), math.radians(45), math.radians(90)),
    Part.ArcOfCircle(Part.Circle(V(29.52, -0.02, 0), V(0, 0, 1), 1.65), math.radians(0), math.radians(45)),
    Part.ArcOfCircle(Part.Circle(V(29.52, -0.02, 0), V(0, 0, 1), 1.65), math.radians(-45), math.radians(0)),
    Part.ArcOfCircle(Part.Circle(V(36.52, 6.98, 0), V(0, 0, 1), 2), math.radians(0), math.radians(45)),
    Part.ArcOfCircle(Part.Circle(V(36.52, 6.98, 0), V(0, 0, 1), 2), math.radians(-135), math.radians(0)),
    Part.ArcOfCircle(Part.Circle(V(36.52, 6.98, 0), V(0, 0, 1), 2), math.radians(45), math.radians(225)),
    Part.ArcOfCircle(Part.Circle(V(22.52, -7.02, 0), V(0, 0, 1), 2), math.radians(0), math.radians(45)),
    Part.ArcOfCircle(Part.Circle(V(22.52, -7.02, 0), V(0, 0, 1), 2), math.radians(-135), math.radians(0)),
    Part.ArcOfCircle(Part.Circle(V(22.52, -7.02, 0), V(0, 0, 1), 2), math.radians(45), math.radians(225)),
    Part.ArcOfCircle(Part.Circle(V(36.52, -7.02, 0), V(0, 0, 1), 2), math.radians(135), math.radians(315)),
    Part.ArcOfCircle(Part.Circle(V(36.52, -7.02, 0), V(0, 0, 1), 2), math.radians(0), math.radians(135)),
    Part.ArcOfCircle(Part.Circle(V(36.52, -7.02, 0), V(0, 0, 1), 2), math.radians(-45), math.radians(0)),
    Part.ArcOfCircle(Part.Circle(V(22.52, 6.98, 0), V(0, 0, 1), 2), math.radians(-45), math.radians(0)),
    Part.ArcOfCircle(Part.Circle(V(22.52, 6.98, 0), V(0, 0, 1), 2), math.radians(135), math.radians(315)),
    Part.ArcOfCircle(Part.Circle(V(22.52, 6.98, 0), V(0, 0, 1), 2), math.radians(0), math.radians(135)),
], False)
sketch2.addConstraint([
    Sketcher.Constraint("Coincident", 0, 2, 1, 1),
    Sketcher.Constraint("Coincident", 1, 2, 2, 1),
    Sketcher.Constraint("Coincident", 2, 2, 3, 1),
    Sketcher.Constraint("Coincident", 3, 2, 4, 1),
    Sketcher.Constraint("Coincident", 4, 2, 5, 1),
    Sketcher.Constraint("Coincident", 5, 2, 6, 1),
    Sketcher.Constraint("Coincident", 6, 2, 7, 1),
    Sketcher.Constraint("Tangent", 7, 2, 8, 1),
    Sketcher.Constraint("Coincident", 8, 2, 9, 1),
    Sketcher.Constraint("Coincident", 9, 2, 10, 1),
    Sketcher.Constraint("Coincident", 10, 2, 11, 1),
    Sketcher.Constraint("Coincident", 11, 2, 12, 1),
    Sketcher.Constraint("Coincident", 12, 2, 13, 1),
    Sketcher.Constraint("Coincident", 13, 2, 14, 1),
    Sketcher.Constraint("Coincident", 14, 2, 15, 1),
    Sketcher.Constraint("Coincident", 15, 2, 16, 1),
    Sketcher.Constraint("Coincident", 16, 2, 17, 1),
    Sketcher.Constraint("Coincident", 17, 2, 18, 1),
    Sketcher.Constraint("Coincident", 18, 2, 19, 1),
    Sketcher.Constraint("Coincident", 19, 2, 20, 1),
    Sketcher.Constraint("Tangent", 20, 2, 21, 1),
    Sketcher.Constraint("Coincident", 21, 2, 22, 1),
    Sketcher.Constraint("Tangent", 22, 2, 23, 1),
    Sketcher.Constraint("Coincident", 23, 2, 24, 1),
    Sketcher.Constraint("Coincident", 24, 2, 25, 1),
    Sketcher.Constraint("Coincident", 25, 2, 26, 1),
    Sketcher.Constraint("Coincident", 26, 2, 27, 1),
    Sketcher.Constraint("Coincident", 27, 2, 28, 1),
    Sketcher.Constraint("Coincident", 28, 2, 29, 1),
    Sketcher.Constraint("Coincident", 29, 2, 30, 1),
    Sketcher.Constraint("Coincident", 30, 2, 31, 1),
    Sketcher.Constraint("Coincident", 31, 2, 32, 1),
    Sketcher.Constraint("Coincident", 32, 2, 33, 1),
    Sketcher.Constraint("Coincident", 33, 2, 34, 1),
    Sketcher.Constraint("Coincident", 34, 2, 35, 1),
    Sketcher.Constraint("Coincident", 35, 2, 36, 1),
    Sketcher.Constraint("Coincident", 36, 2, 37, 1),
    Sketcher.Constraint("Coincident", 37, 2, 38, 1),
    Sketcher.Constraint("Coincident", 38, 2, 39, 1),
    Sketcher.Constraint("Coincident", 39, 2, 40, 1),
    Sketcher.Constraint("Coincident", 40, 2, 41, 1),
    Sketcher.Constraint("Coincident", 41, 2, 42, 1),
    Sketcher.Constraint("Coincident", 42, 2, 43, 1),
    Sketcher.Constraint("Coincident", 43, 2, 44, 1),
    Sketcher.Constraint("Coincident", 44, 2, 45, 1),
    Sketcher.Constraint("Coincident", 45, 2, 46, 1),
    Sketcher.Constraint("Coincident", 46, 2, 47, 1),
    Sketcher.Constraint("Coincident", 47, 2, 48, 1),
    Sketcher.Constraint("Coincident", 48, 2, 49, 1),
    Sketcher.Constraint("Coincident", 49, 2, 50, 1),
    Sketcher.Constraint("Tangent", 50, 2, 51, 1),
    Sketcher.Constraint("Tangent", 51, 2, 52, 1),
    Sketcher.Constraint("Coincident", 52, 2, 53, 1),
    Sketcher.Constraint("Coincident", 53, 2, 54, 1),
    Sketcher.Constraint("Coincident", 54, 2, 55, 1),
    Sketcher.Constraint("Coincident", 55, 2, 56, 1),
    Sketcher.Constraint("Coincident", 56, 2, 57, 1),
    Sketcher.Constraint("Coincident", 57, 2, 58, 1),
    Sketcher.Constraint("Coincident", 58, 2, 59, 1),
    Sketcher.Constraint("Coincident", 59, 2, 0, 1),
    Sketcher.Constraint("Tangent", 60, 1, 61, 2),
    Sketcher.Constraint("Tangent", 61, 1, 62, 2),
    Sketcher.Constraint("Tangent", 62, 1, 63, 2),
    Sketcher.Constraint("Tangent", 63, 1, 64, 2),
    Sketcher.Constraint("Tangent", 64, 1, 65, 2),
    Sketcher.Constraint("Tangent", 65, 1, 66, 2),
    Sketcher.Constraint("Tangent", 66, 1, 60, 2),
    Sketcher.Constraint("Tangent", 67, 1, 68, 2),
    Sketcher.Constraint("Tangent", 68, 1, 69, 2),
    Sketcher.Constraint("Tangent", 69, 1, 67, 2),
    Sketcher.Constraint("Tangent", 70, 1, 71, 2),
    Sketcher.Constraint("Tangent", 71, 1, 72, 2),
    Sketcher.Constraint("Tangent", 72, 1, 70, 2),
    Sketcher.Constraint("Tangent", 73, 1, 74, 2),
    Sketcher.Constraint("Tangent", 74, 1, 75, 2),
    Sketcher.Constraint("Tangent", 75, 1, 73, 2),
    Sketcher.Constraint("Tangent", 76, 1, 77, 2),
    Sketcher.Constraint("Tangent", 77, 1, 78, 2),
    Sketcher.Constraint("Tangent", 78, 1, 76, 2),
    Sketcher.Constraint("Vertical", 0),
    Sketcher.Constraint("Horizontal", 1),
    Sketcher.Constraint("Vertical", 2),
    Sketcher.Constraint("Horizontal", 3),
    Sketcher.Constraint("Vertical", 4),
    Sketcher.Constraint("Horizontal", 5),
    Sketcher.Constraint("Vertical", 8),
    Sketcher.Constraint("Horizontal", 9),
    Sketcher.Constraint("Vertical", 10),
    Sketcher.Constraint("Horizontal", 11),
    Sketcher.Constraint("Vertical", 12),
    Sketcher.Constraint("Horizontal", 13),
    Sketcher.Constraint("Vertical", 14),
    Sketcher.Constraint("Horizontal", 15),
    Sketcher.Constraint("Vertical", 16),
    Sketcher.Constraint("Horizontal", 17),
    Sketcher.Constraint("Vertical", 18),
    Sketcher.Constraint("Horizontal", 19),
    Sketcher.Constraint("Vertical", 20),
    Sketcher.Constraint("Horizontal", 23),
    Sketcher.Constraint("Vertical", 24),
    Sketcher.Constraint("Horizontal", 25),
    Sketcher.Constraint("Vertical", 26),
    Sketcher.Constraint("Horizontal", 27),
    Sketcher.Constraint("Vertical", 28),
    Sketcher.Constraint("Horizontal", 29),
    Sketcher.Constraint("Vertical", 30),
    Sketcher.Constraint("Horizontal", 31),
    Sketcher.Constraint("Vertical", 32),
    Sketcher.Constraint("Horizontal", 33),
    Sketcher.Constraint("Vertical", 34),
    Sketcher.Constraint("Horizontal", 35),
    Sketcher.Constraint("Vertical", 38),
    Sketcher.Constraint("Horizontal", 39),
    Sketcher.Constraint("Vertical", 40),
    Sketcher.Constraint("Horizontal", 41),
    Sketcher.Constraint("Vertical", 42),
    Sketcher.Constraint("Horizontal", 43),
    Sketcher.Constraint("Vertical", 44),
    Sketcher.Constraint("Horizontal", 45),
    Sketcher.Constraint("Vertical", 46),
    Sketcher.Constraint("Horizontal", 47),
    Sketcher.Constraint("Vertical", 48),
    Sketcher.Constraint("Horizontal", 49),
    Sketcher.Constraint("Vertical", 50),
    Sketcher.Constraint("Horizontal", 53),
    Sketcher.Constraint("Vertical", 54),
    Sketcher.Constraint("Horizontal", 55),
    Sketcher.Constraint("Vertical", 56),
    Sketcher.Constraint("Horizontal", 57),
    Sketcher.Constraint("Vertical", 58),
    Sketcher.Constraint("Horizontal", 59),
    Sketcher.Constraint("Coincident", 7, 3, 6, 3),
    Sketcher.Constraint("Coincident", 22, 3, 21, 3),
    Sketcher.Constraint("Coincident", 37, 3, 36, 3),
    Sketcher.Constraint("Coincident", 62, 3, 60, 3),
    Sketcher.Constraint("Coincident", 64, 3, 60, 3),
    Sketcher.Constraint("Equal", 7, 21),
    Sketcher.Constraint("Equal", 37, 51),
    Sketcher.Constraint("Equal", 22, 52),
    Sketcher.Constraint("Equal", 67, 70),
    Sketcher.Constraint("Equal", 72, 73),
    Sketcher.Constraint("Equal", 75, 76),
    Sketcher.Constraint("Horizontal", 21, 3, 37, 3),
    Sketcher.Constraint("Horizontal", 7, 3, 51, 3),
    Sketcher.Constraint("Horizontal", 72, 3, 73, 3),
    Sketcher.Constraint("Horizontal", 69, 3, 76, 3),
    Sketcher.Constraint("Horizontal", 19, 2, 28, 2),
    Sketcher.Constraint("Horizontal", 27, 2, 30, 2),
    Sketcher.Constraint("Horizontal", 25, 2, 32, 2),
    Sketcher.Constraint("Horizontal", 23, 2, 34, 2),
    Sketcher.Constraint("Horizontal", 21, 2, 36, 2),
    Sketcher.Constraint("Horizontal", 20, 2, 37, 2),
    Sketcher.Constraint("Horizontal", 29, 2, 38, 2),
    Sketcher.Constraint("Horizontal", 17, 2, 40, 2),
    Sketcher.Constraint("Horizontal", 15, 2, 42, 2),
    Sketcher.Constraint("Horizontal", 13, 2, 44, 2),
    Sketcher.Constraint("Horizontal", 11, 2, 46, 2),
    Sketcher.Constraint("Horizontal", 9, 2, 48, 2),
    Sketcher.Constraint("Horizontal", 6, 2, 51, 2),
    Sketcher.Constraint("Horizontal", 3, 2, 54, 2),
    Sketcher.Constraint("Horizontal", 1, 2, 56, 2),
    Sketcher.Constraint("Horizontal", 49, 2, 58, 2),
    Sketcher.Constraint("Horizontal", 66, 3, 61, 1),
    Sketcher.Constraint("Horizontal", 62, 1, 64, 1),
    Sketcher.Constraint("Horizontal", 61, 1, 65, 1),
    Sketcher.Constraint("Horizontal", 60, 1, 66, 1),
    Sketcher.Constraint("Horizontal", 78, 3, 67, 1),
    Sketcher.Constraint("Horizontal", 75, 3, 70, 1),
    Sketcher.Constraint("Horizontal", 72, 1, 73, 1),
    Sketcher.Constraint("Horizontal", 70, 1, 74, 1),
    Sketcher.Constraint("Horizontal", 71, 1, 75, 1),
    Sketcher.Constraint("Horizontal", 68, 1, 76, 1),
    Sketcher.Constraint("Horizontal", 69, 1, 77, 1),
    Sketcher.Constraint("Horizontal", 67, 1, 78, 1),
    Sketcher.Constraint("Vertical", 7, 3, 21, 3),
    Sketcher.Constraint("Vertical", 37, 3, 51, 3),
    Sketcher.Constraint("Vertical", 69, 3, 73, 3),
    Sketcher.Constraint("Vertical", 72, 3, 76, 3),
    Sketcher.Constraint("Vertical", 22, 3, 5, 2),
    Sketcher.Constraint("Vertical", 4, 2, 13, 2),
    Sketcher.Constraint("Vertical", 12, 2, 15, 2),
    Sketcher.Constraint("Vertical", 10, 2, 17, 2),
    Sketcher.Constraint("Vertical", 6, 2, 21, 2),
    Sketcher.Constraint("Vertical", 14, 2, 23, 2),
    Sketcher.Constraint("Vertical", 2, 2, 25, 2),
    Sketcher.Constraint("Vertical", 0, 2, 27, 2),
    Sketcher.Constraint("Vertical", 36, 3, 35, 2),
    Sketcher.Constraint("Vertical", 34, 2, 43, 2),
    Sketcher.Constraint("Vertical", 42, 2, 45, 2),
    Sketcher.Constraint("Vertical", 40, 2, 47, 2),
    Sketcher.Constraint("Vertical", 35, 2, 52, 2),
    Sketcher.Constraint("Vertical", 44, 2, 53, 2),
    Sketcher.Constraint("Vertical", 32, 2, 55, 2),
    Sketcher.Constraint("Vertical", 30, 2, 57, 2),
    Sketcher.Constraint("Vertical", 60, 1, 62, 1),
    Sketcher.Constraint("Vertical", 66, 3, 63, 1),
    Sketcher.Constraint("Vertical", 68, 1, 73, 1),
    Sketcher.Constraint("Vertical", 69, 1, 75, 1),
    Sketcher.Constraint("Equal", 27, 31),
    Sketcher.Constraint("Equal", 25, 33),
    Sketcher.Constraint("Equal", 23, 35),
    Sketcher.Constraint("Equal", 19, 39),
    Sketcher.Constraint("Equal", 17, 41),
    Sketcher.Constraint("Equal", 45, 0),
    Sketcher.Constraint("Equal", 47, 2),
    Sketcher.Constraint("Equal", 49, 4),
    Sketcher.Constraint("Equal", 55, 10),
    Sketcher.Constraint("Equal", 57, 12),
    Sketcher.Constraint("Equal", 59, 14),
    Sketcher.Constraint("Equal", 12, 16),
    Sketcher.Constraint("Equal", 10, 18),
    Sketcher.Constraint("Equal", 8, 20),
    Sketcher.Constraint("Equal", 4, 24),
    Sketcher.Constraint("Equal", 2, 26),
    Sketcher.Constraint("Radius", 68, Q("2.000001 mm")),
    Sketcher.Constraint("Radius", 7, Q("0.500002 mm")),
    Sketcher.Constraint("DistanceX", 1, 2, 1, 1, Q("2 mm")),
    Sketcher.Constraint("Radius", 60, Q("1.649999 mm")),
    Sketcher.Constraint("DistanceX", 5, 2, 5, 1, Q("6.5 mm")),
    Sketcher.Constraint("DistanceX", 9, 1, 9, 2, Q("1.5 mm")),
    Sketcher.Constraint("DistanceX", 11, 1, 11, 2, Q("3.7 mm")),
    Sketcher.Constraint("DistanceX", 29, 1, 29, 2, Q("4.3 mm")),
    Sketcher.Constraint("DistanceX", 3, 1, 3, 2, Q("1.15 mm")),
    Sketcher.Constraint("DistanceX", -1, 1, 7, 3, Q("20.019741 mm")),
    Sketcher.Constraint("DistanceY", 36, 3, -1, 1, Q("9.51974 mm")),
    Sketcher.Constraint("DistanceX", -1, 1, 60, 3, Q("29.519739 mm")),
    Sketcher.Constraint("DistanceY", 62, 3, -1, 1, Q("0.019739 mm")),
    Sketcher.Constraint("DistanceX", -1, 1, 68, 3, Q("36.519738 mm")),
    Sketcher.Constraint("DistanceX", -1, 1, 71, 3, Q("22.519738 mm")),
    Sketcher.Constraint("DistanceY", 21, 2, -1, 1, Q("9.873291 mm")),
    Sketcher.Constraint("DistanceY", -1, 1, 62, 1, Q("1.146989 mm")),
    Sketcher.Constraint("DistanceY", -1, 1, 68, 1, Q("5.566049 mm")),
    Sketcher.Constraint("DistanceY", 71, 1, -1, 1, Q("8.433951 mm")),
    Sketcher.Constraint("DistanceX", -1, 1, 75, 1, Q("37.933952 mm")),
    Sketcher.Constraint("DistanceX", -1, 1, 76, 1, Q("23.933952 mm")),
])
pad2 = body2.newObject("PartDesign::Pad", "Pad001")
pad2.Profile = sketch2
pad2.Length = 116

doc.recompute()
